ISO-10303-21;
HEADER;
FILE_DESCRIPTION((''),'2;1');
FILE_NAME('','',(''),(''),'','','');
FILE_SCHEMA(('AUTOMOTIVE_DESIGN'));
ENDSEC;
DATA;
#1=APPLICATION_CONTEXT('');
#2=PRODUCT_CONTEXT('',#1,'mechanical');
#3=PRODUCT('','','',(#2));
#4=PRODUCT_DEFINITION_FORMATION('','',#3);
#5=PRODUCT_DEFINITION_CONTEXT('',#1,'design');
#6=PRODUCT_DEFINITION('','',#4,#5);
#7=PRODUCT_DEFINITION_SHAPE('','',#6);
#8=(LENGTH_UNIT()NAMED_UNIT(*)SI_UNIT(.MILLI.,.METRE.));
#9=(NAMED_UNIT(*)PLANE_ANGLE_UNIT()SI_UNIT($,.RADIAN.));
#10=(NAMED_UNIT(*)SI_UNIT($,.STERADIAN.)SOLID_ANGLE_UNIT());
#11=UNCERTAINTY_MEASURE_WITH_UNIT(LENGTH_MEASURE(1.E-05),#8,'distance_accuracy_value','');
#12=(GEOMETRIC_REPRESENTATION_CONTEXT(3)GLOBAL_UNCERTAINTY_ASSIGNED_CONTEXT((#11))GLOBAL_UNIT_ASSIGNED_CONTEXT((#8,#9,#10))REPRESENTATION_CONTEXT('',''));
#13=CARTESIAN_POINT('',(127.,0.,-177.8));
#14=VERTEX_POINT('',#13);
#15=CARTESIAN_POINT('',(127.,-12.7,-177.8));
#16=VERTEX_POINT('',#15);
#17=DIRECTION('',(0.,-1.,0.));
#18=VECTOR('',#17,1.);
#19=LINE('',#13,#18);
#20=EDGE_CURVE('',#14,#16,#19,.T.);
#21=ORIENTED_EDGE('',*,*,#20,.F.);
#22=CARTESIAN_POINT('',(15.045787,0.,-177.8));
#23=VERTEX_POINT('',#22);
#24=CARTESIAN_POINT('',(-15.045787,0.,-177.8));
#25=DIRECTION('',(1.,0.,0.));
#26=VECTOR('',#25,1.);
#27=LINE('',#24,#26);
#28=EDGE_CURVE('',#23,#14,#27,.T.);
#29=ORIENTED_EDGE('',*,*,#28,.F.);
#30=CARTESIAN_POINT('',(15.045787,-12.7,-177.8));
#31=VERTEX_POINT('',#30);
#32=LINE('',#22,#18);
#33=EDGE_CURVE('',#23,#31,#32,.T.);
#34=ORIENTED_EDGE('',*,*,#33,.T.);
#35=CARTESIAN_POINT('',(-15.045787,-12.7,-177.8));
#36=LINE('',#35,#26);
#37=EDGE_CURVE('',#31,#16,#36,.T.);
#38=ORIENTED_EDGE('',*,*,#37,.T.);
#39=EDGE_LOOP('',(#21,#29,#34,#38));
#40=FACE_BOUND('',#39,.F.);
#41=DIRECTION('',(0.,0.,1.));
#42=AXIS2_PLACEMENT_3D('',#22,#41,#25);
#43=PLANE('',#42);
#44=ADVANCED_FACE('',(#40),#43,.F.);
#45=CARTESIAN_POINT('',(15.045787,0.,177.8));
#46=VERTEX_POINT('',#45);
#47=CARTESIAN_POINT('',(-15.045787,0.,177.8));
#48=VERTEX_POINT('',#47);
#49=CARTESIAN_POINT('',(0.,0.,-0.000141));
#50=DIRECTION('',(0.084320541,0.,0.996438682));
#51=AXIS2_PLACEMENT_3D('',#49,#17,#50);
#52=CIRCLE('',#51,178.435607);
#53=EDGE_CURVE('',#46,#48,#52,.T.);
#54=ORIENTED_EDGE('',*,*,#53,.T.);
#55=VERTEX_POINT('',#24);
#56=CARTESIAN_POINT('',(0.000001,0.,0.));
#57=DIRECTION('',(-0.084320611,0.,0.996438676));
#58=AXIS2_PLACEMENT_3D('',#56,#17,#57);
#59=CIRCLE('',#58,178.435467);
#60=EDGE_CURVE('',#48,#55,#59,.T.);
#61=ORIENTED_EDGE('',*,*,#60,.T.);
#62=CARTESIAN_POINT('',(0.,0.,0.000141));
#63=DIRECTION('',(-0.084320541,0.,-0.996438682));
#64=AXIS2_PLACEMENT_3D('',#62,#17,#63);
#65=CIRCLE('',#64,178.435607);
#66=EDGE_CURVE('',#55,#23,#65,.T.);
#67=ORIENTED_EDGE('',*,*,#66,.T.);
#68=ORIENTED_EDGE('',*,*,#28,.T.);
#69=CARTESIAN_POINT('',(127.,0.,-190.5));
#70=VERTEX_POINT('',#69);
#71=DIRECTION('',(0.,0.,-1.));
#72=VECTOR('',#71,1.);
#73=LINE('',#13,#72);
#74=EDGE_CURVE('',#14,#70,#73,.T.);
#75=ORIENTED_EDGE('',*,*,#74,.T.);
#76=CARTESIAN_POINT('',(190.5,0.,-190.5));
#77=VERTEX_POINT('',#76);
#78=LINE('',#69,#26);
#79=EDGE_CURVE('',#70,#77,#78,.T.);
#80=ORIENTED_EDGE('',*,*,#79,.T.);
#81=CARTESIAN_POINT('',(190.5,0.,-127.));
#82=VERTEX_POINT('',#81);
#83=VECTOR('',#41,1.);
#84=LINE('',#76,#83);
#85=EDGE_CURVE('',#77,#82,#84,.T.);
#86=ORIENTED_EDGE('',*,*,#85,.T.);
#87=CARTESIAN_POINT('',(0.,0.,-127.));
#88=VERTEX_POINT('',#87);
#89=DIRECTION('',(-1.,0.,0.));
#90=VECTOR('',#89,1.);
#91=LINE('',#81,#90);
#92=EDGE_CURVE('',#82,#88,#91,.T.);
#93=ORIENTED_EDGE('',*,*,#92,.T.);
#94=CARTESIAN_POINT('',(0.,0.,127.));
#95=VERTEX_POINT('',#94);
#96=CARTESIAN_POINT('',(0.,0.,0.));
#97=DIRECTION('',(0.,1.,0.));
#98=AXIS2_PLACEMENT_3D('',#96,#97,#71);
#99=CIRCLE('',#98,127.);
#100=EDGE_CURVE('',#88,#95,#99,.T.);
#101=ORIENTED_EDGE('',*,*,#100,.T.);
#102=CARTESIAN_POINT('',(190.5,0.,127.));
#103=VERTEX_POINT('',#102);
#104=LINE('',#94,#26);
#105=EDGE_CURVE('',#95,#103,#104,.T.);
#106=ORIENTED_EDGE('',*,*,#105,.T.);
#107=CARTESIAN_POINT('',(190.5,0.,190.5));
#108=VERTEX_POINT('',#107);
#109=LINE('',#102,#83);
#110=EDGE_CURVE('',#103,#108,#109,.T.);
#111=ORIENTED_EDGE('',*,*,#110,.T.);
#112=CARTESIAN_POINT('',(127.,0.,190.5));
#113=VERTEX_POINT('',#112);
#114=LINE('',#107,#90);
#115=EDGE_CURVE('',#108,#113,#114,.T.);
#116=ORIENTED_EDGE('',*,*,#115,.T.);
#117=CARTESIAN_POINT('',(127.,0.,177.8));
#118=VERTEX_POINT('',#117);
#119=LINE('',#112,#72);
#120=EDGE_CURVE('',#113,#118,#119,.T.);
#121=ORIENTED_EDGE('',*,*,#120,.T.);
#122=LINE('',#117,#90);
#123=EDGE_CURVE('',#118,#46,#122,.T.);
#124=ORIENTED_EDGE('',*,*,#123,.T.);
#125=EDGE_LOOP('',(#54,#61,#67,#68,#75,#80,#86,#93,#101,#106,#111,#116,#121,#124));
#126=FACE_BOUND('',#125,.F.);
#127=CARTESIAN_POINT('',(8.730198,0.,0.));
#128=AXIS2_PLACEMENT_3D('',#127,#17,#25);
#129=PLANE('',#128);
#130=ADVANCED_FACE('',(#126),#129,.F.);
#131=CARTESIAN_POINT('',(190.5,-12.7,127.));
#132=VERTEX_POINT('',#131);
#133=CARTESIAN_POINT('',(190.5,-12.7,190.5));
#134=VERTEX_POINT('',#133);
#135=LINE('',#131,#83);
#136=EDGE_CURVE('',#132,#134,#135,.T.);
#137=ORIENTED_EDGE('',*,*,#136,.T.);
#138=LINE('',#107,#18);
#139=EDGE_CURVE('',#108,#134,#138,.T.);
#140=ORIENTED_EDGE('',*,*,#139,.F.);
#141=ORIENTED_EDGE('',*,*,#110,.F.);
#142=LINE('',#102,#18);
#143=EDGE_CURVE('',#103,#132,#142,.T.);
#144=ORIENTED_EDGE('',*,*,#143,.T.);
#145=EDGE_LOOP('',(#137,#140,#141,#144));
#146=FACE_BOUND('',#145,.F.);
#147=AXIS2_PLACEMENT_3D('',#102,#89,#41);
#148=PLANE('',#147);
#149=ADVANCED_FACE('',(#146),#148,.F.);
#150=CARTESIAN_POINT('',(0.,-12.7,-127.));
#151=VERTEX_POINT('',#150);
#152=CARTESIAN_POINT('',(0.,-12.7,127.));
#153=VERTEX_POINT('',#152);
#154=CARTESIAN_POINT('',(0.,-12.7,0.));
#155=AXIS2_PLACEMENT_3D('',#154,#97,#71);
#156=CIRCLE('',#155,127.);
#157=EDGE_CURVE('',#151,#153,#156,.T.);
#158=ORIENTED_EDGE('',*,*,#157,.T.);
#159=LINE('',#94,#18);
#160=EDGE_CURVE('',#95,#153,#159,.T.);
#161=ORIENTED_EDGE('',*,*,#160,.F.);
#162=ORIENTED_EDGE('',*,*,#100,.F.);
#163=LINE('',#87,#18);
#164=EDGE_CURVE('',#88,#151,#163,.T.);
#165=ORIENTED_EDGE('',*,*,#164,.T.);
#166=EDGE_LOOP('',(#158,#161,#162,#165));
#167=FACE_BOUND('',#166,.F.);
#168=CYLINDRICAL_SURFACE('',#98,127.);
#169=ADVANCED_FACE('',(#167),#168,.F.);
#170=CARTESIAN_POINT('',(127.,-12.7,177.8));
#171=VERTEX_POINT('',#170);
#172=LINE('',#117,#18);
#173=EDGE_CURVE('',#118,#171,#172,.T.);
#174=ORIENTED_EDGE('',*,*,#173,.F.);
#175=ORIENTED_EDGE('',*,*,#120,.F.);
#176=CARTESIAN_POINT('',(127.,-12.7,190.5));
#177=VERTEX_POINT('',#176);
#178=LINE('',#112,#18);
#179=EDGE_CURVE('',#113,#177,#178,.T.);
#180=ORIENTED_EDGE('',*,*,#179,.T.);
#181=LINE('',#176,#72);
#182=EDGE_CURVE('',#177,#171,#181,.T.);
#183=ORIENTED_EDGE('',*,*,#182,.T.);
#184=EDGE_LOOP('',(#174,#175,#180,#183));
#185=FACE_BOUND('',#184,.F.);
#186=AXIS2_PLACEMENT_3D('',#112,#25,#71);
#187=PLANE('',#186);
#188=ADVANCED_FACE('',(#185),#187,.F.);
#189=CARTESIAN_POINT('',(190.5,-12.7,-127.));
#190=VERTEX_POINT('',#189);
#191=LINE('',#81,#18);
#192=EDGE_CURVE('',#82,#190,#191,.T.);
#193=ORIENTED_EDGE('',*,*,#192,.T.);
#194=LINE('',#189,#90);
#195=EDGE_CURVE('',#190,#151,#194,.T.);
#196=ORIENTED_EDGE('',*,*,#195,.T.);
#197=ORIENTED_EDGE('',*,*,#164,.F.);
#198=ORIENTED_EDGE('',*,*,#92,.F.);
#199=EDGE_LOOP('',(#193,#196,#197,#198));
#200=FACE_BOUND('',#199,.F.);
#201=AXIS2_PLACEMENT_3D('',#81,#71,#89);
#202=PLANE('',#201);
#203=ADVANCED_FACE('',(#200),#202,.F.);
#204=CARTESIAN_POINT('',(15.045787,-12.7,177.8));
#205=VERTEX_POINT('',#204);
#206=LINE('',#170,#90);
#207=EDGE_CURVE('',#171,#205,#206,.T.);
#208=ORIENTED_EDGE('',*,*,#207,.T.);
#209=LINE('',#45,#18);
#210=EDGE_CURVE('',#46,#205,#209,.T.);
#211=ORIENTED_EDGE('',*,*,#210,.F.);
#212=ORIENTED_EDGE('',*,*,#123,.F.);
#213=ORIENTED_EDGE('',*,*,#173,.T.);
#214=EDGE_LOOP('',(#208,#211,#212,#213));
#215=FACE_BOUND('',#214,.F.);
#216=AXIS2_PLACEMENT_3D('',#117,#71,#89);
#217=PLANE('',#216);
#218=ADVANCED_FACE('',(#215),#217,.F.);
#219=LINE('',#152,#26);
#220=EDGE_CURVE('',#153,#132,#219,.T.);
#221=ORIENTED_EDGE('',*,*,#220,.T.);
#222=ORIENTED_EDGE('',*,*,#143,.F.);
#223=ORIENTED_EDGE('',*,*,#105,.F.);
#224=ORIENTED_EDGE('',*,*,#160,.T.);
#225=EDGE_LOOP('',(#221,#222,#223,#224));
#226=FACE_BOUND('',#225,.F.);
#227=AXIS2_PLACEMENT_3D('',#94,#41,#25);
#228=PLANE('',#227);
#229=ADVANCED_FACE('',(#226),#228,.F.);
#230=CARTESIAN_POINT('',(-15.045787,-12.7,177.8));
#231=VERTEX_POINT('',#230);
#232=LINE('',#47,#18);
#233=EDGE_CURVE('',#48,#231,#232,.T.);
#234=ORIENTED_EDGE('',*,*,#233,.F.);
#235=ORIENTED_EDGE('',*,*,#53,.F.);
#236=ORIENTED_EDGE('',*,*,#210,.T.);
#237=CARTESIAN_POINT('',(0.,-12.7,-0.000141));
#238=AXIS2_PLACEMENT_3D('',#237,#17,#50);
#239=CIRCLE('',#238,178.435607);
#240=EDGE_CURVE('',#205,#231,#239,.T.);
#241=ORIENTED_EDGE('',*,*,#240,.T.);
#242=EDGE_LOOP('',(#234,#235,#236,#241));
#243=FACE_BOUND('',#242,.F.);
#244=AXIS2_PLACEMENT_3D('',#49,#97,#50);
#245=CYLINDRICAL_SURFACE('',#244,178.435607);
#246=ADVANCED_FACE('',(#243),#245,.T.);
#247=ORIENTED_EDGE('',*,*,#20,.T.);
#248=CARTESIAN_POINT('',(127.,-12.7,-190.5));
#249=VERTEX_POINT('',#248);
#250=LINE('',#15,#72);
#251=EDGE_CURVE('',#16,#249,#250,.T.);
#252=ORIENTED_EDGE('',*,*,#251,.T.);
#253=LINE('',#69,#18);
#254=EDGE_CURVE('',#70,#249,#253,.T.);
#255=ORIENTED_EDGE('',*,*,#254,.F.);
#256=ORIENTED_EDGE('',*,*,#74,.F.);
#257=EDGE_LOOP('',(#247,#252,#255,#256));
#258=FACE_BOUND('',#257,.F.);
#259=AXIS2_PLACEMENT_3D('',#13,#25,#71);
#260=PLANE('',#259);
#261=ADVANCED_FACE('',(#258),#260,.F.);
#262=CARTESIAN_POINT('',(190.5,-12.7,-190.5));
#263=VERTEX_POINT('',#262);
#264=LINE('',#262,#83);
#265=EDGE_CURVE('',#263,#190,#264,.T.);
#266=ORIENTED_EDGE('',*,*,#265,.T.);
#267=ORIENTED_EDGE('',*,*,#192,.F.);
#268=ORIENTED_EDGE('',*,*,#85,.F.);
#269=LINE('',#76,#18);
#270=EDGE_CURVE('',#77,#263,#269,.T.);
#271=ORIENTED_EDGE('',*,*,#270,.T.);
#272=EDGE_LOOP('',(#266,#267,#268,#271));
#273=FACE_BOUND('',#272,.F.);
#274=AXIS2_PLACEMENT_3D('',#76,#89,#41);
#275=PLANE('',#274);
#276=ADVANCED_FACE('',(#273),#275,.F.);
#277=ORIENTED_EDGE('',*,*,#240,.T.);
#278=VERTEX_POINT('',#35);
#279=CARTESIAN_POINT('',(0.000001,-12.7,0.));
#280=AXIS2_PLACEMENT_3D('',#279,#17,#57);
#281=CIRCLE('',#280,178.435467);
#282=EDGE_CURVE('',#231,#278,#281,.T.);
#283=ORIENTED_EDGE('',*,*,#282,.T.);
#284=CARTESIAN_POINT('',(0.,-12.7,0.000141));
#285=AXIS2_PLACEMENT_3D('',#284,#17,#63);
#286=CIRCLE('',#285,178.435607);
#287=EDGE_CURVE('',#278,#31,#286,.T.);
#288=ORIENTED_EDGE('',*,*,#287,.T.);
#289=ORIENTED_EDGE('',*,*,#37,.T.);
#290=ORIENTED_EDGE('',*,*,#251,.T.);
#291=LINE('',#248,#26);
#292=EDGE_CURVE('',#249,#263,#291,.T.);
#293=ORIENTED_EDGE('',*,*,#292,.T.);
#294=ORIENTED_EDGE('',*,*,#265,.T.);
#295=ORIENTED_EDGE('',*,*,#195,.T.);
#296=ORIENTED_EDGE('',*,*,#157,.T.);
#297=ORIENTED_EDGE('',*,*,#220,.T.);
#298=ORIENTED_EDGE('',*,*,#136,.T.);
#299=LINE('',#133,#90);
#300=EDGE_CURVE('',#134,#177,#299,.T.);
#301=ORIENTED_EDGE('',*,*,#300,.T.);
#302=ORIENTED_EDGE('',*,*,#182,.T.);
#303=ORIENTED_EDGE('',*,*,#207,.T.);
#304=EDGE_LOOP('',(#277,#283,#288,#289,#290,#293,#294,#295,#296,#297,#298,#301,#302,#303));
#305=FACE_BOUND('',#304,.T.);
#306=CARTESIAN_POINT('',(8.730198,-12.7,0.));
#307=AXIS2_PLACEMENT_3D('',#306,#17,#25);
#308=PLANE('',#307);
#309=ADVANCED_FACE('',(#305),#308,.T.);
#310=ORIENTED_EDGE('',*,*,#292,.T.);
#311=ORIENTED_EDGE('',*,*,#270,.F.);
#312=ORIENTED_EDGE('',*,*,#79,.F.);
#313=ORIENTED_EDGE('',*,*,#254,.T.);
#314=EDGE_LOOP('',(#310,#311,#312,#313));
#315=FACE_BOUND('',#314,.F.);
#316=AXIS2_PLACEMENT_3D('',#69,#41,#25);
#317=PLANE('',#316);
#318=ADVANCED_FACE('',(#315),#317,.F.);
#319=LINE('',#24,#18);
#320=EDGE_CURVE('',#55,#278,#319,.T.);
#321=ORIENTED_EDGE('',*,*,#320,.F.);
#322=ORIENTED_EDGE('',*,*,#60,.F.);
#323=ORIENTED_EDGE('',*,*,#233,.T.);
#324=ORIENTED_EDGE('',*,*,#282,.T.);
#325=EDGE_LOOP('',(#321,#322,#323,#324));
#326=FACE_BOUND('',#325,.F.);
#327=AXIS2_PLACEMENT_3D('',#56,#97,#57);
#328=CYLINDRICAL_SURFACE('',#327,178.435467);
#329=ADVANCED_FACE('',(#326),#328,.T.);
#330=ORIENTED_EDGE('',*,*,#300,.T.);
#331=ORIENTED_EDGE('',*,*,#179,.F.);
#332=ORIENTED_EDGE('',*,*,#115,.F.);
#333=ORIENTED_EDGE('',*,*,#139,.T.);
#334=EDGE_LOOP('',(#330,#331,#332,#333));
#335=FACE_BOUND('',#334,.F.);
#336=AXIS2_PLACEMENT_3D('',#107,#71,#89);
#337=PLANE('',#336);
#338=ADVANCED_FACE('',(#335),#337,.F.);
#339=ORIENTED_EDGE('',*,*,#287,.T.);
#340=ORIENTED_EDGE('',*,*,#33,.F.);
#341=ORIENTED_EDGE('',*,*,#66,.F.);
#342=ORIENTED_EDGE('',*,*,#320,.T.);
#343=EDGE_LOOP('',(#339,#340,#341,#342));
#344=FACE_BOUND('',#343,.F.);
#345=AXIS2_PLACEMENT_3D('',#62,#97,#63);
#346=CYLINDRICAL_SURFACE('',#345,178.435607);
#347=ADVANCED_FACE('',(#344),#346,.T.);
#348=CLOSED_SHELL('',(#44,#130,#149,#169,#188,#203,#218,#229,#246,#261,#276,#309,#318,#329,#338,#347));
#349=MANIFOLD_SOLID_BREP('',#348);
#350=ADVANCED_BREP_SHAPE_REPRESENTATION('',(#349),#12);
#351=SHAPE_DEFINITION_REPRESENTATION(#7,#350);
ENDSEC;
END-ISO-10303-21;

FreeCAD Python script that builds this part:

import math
import FreeCAD as App
import Part
import Sketcher

V = App.Vector
Q = App.Units.Quantity

doc = App.newDocument("Part")
body = doc.addObject("PartDesign::Body", "Body")

sketch1 = body.newObject("Sketcher::SketchObject", "Sketch")
sketch1.AttachmentSupport = (doc.getObject("XZ_Plane"), [""])
sketch1.MapMode = "FlatFace"
sketch1.addGeometry([
    Part.LineSegment(V(127, 190.5, 0), V(127, 177.8, 0)),
    Part.LineSegment(V(127, 177.8, 0), V(15.045787, 177.8, 0)),
    Part.ArcOfCircle(Part.Circle(V(0, -0.000141, 0), V(0, 0, 1), 178.435607), math.radians(85.163046), math.radians(94.836954)),
    Part.ArcOfCircle(Part.Circle(V(0.000001, 0, 0), V(0, 0, 1), 178.435467), math.radians(94.836958), math.radians(265.163042)),
    Part.ArcOfCircle(Part.Circle(V(0, 0.000141, 0), V(0, 0, 1), 178.435607), math.radians(-94.836954), math.radians(-85.163046)),
    Part.LineSegment(V(15.045787, -177.8, 0), V(127, -177.8, 0)),
    Part.LineSegment(V(127, -177.8, 0), V(127, -190.5, 0)),
    Part.LineSegment(V(127, -190.5, 0), V(190.5, -190.5, 0)),
    Part.LineSegment(V(190.5, -190.5, 0), V(190.5, -127, 0)),
    Part.LineSegment(V(190.5, -127, 0), V(0, -127, 0)),
    Part.ArcOfCircle(Part.Circle(V(0, 0, 0), V(0, 0, 1), 127), math.radians(90), math.radians(270)),
    Part.LineSegment(V(0, 127, 0), V(190.5, 127, 0)),
    Part.LineSegment(V(190.5, 127, 0), V(190.5, 190.5, 0)),
    Part.LineSegment(V(190.5, 190.5, 0), V(127, 190.5, 0)),
], False)
sketch1.addConstraint([
    Sketcher.Constraint("Coincident", 0, 2, 1, 1),
    Sketcher.Constraint("Coincident", 1, 2, 2, 1),
    Sketcher.Constraint("Coincident", 2, 2, 3, 1),
    Sketcher.Constraint("Coincident", 3, 2, 4, 1),
    Sketcher.Constraint("Coincident", 4, 2, 5, 1),
    Sketcher.Constraint("Coincident", 5, 2, 6, 1),
    Sketcher.Constraint("Coincident", 6, 2, 7, 1),
    Sketcher.Constraint("Coincident", 7, 2, 8, 1),
    Sketcher.Constraint("Coincident", 8, 2, 9, 1),
    Sketcher.Constraint("Coincident", 9, 2, 10, 2),
    Sketcher.Constraint("Coincident", 10, 1, 11, 1),
    Sketcher.Constraint("Coincident", 11, 2, 12, 1),
    Sketcher.Constraint("Coincident", 12, 2, 13, 1),
    Sketcher.Constraint("Coincident", 13, 2, 0, 1),
    Sketcher.Constraint("Vertical", 0),
    Sketcher.Constraint("Horizontal", 1),
    Sketcher.Constraint("Horizontal", 5),
    Sketcher.Constraint("Vertical", 6),
    Sketcher.Constraint("Horizontal", 7),
    Sketcher.Constraint("Vertical", 8),
    Sketcher.Constraint("Horizontal", 9),
    Sketcher.Constraint("Horizontal", 11),
    Sketcher.Constraint("Vertical", 12),
    Sketcher.Constraint("Horizontal", 13),
    Sketcher.Constraint("Coincident", 3, 3, -1, 1),
    Sketcher.Constraint("Coincident", 10, 3, -1, 1),
    Sketcher.Constraint("PointOnObject", 2, 3, -2),
    Sketcher.Constraint("PointOnObject", 4, 3, -2),
    Sketcher.Constraint("PointOnObject", 9, 2, -2),
    Sketcher.Constraint("PointOnObject", 10, 1, -2),
    Sketcher.Constraint("Radius", 10, Q("5 in")),
    Sketcher.Constraint("DistanceX", 7, 1, 7, 2, Q("2.5 in")),
    Sketcher.Constraint("DistanceX", 9, 2, 9, 1, Q("7.5 in")),
    Sketcher.Constraint("DistanceX", 11, 1, 11, 2, Q("7.5 in")),
    Sketcher.Constraint("DistanceX", 13, 2, 13, 1, Q("2.5 in")),
    Sketcher.Constraint("DistanceY", 0, 2, 0, 1, Q("0.5 in")),
    Sketcher.Constraint("DistanceY", 6, 2, 6, 1, Q("0.5 in")),
    Sketcher.Constraint("DistanceY", 8, 1, 8, 2, Q("2.5 in")),
    Sketcher.Constraint("DistanceY", 12, 1, 12, 2, Q("2.5 in")),
    Sketcher.Constraint("DistanceY", -1, 1, 2, 2, Q("7 in")),
    Sketcher.Constraint("DistanceY", 3, 2, -1, 1, Q("7 in")),
    Sketcher.Constraint("Radius", 2, Q("178.435607 mm")),
    Sketcher.Constraint("Radius", 3, Q("178.435467 mm")),
    Sketcher.Constraint("Radius", 4, Q("178.435607 mm")),
])
pad1 = body.newObject("PartDesign::Pad", "Pad")
pad1.Profile = sketch1
pad1.Length = Q("0.5 in")

doc.recompute()
